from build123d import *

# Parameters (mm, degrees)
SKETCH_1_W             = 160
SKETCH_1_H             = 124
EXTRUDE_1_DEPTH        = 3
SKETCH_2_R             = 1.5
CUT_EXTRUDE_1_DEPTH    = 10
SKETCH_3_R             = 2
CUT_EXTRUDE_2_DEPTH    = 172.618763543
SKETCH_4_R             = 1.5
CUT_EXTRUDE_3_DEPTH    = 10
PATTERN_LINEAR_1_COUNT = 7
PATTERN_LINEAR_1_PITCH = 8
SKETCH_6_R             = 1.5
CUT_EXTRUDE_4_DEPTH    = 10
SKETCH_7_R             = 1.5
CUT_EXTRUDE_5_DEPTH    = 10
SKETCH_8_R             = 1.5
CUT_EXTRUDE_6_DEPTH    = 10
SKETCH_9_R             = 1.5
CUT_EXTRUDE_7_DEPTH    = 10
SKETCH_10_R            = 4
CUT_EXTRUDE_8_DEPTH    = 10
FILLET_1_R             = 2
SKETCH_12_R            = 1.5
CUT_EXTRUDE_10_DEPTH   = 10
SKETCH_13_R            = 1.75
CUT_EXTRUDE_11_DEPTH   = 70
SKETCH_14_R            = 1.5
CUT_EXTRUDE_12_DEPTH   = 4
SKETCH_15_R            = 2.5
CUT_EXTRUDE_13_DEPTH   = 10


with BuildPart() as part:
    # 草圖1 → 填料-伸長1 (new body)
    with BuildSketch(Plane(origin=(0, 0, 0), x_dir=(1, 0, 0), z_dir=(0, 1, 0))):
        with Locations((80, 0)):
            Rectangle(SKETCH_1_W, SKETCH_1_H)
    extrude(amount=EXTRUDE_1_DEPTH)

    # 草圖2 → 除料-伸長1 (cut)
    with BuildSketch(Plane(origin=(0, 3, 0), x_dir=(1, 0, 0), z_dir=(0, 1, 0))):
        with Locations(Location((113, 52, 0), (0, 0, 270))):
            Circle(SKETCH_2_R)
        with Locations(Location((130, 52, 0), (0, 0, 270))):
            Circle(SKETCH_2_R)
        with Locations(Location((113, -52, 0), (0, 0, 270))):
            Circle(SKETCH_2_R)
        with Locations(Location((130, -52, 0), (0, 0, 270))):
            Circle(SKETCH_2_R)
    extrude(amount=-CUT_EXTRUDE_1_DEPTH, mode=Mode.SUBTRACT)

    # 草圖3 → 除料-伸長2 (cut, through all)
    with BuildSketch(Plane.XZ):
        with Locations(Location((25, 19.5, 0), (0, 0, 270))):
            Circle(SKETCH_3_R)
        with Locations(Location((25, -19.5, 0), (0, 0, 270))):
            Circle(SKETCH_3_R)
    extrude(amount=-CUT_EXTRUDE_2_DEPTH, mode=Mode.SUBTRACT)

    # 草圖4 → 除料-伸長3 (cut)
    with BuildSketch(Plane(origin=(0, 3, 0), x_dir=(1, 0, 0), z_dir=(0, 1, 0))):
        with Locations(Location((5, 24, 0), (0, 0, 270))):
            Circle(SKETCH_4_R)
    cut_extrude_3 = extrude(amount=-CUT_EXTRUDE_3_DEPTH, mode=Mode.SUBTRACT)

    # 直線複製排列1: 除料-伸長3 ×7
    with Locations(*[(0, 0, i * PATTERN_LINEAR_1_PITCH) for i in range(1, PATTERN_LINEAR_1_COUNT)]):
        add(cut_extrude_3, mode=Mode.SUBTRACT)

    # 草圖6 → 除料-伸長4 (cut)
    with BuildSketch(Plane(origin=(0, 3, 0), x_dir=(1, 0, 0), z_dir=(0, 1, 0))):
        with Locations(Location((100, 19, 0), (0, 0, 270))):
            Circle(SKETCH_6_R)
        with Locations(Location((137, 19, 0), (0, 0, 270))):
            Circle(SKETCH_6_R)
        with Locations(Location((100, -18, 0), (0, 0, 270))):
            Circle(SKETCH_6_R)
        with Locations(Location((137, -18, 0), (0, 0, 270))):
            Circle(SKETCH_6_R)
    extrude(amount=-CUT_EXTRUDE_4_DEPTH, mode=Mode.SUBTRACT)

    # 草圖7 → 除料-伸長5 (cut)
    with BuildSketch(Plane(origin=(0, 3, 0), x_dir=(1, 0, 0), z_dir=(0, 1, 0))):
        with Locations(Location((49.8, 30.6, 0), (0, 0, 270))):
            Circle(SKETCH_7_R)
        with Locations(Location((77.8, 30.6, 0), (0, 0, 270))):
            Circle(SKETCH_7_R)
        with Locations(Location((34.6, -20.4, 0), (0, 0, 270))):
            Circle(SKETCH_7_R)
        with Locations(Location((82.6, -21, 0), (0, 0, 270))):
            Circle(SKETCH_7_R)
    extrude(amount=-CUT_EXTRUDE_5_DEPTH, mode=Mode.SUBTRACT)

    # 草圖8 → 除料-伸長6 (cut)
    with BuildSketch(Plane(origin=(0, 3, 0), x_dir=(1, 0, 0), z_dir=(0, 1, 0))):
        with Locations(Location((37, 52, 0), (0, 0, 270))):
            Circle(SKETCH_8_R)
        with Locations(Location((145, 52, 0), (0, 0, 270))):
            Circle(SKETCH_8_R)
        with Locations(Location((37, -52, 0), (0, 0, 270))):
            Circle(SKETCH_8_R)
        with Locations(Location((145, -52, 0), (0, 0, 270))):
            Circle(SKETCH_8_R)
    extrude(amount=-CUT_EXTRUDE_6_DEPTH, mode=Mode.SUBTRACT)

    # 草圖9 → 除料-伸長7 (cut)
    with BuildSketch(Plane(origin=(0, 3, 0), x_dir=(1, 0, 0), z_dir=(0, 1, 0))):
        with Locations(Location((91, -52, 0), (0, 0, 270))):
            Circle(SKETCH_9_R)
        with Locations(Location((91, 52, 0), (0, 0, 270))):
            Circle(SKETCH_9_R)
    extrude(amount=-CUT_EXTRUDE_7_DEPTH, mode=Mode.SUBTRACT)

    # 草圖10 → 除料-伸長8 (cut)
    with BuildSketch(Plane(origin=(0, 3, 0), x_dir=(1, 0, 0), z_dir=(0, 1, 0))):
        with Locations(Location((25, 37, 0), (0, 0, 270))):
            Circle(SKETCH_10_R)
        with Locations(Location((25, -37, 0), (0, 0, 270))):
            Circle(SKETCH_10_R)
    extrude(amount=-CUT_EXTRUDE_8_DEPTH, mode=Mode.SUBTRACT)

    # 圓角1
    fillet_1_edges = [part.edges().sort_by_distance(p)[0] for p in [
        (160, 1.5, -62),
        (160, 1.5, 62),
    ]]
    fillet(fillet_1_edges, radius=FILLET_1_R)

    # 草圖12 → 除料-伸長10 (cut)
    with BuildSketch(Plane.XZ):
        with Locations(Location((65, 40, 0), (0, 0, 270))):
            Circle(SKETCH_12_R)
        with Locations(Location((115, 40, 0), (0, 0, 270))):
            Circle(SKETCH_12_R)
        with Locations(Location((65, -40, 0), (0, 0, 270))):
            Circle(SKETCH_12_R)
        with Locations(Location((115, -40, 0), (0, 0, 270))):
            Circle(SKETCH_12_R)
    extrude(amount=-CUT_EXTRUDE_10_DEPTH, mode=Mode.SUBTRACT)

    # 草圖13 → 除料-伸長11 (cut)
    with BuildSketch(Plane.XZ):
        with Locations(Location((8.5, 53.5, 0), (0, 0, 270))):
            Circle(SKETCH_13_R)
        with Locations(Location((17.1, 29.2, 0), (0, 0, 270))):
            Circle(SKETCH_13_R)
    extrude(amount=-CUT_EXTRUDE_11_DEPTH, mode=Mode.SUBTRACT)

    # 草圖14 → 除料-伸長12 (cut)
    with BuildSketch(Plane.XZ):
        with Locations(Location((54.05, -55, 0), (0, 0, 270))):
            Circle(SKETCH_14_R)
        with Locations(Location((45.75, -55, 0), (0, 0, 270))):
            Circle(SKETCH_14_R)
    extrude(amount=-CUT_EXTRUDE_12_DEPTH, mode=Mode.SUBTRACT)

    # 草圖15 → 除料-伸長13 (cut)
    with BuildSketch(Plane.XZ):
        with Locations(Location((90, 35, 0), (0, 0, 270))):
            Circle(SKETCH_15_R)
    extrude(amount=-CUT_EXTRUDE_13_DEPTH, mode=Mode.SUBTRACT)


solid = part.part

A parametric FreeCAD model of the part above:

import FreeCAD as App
import Part
import Sketcher

V = App.Vector
Q = App.Units.Quantity


def edges_at(feature, points):
    """Names of the edges that pass closest to the given points."""
    edges = feature.Shape.Edges
    near = lambda p: min(range(len(edges)), key=lambda i: edges[i].distToShape(Part.Vertex(*p))[0])
    return sorted({f"Edge{near(p) + 1}" for p in points})


def add_polygon(sketch, points):
    """Adds a closed chain of lines whose ends are joined by coincident constraints."""
    first, n = sketch.GeometryCount, len(points)
    for a, b in zip(points, points[1:] + points[:1]):
        sketch.addGeometry(Part.LineSegment(App.Vector(*a, 0), App.Vector(*b, 0)), False)
    for i in range(n):
        sketch.addConstraint(Sketcher.Constraint("Coincident", first + i, 2, first + (i + 1) % n, 1))

doc = App.newDocument("Part")
body = doc.addObject("PartDesign::Body", "Body")

# Sketch on XZ plane
sketch1 = body.newObject("Sketcher::SketchObject", "Sketch")
sketch1.AttachmentSupport = (doc.getObject("XZ_Plane"), [""])
sketch1.MapMode = "FlatFace"
add_polygon(sketch1, [(0, -62), (0, 62), (160, 62), (160, -62)])  # lines 0-3
sketch1.addConstraint(Sketcher.Constraint("Vertical", 0))
sketch1.addConstraint(Sketcher.Constraint("Horizontal", 1))
sketch1.addConstraint(Sketcher.Constraint("Vertical", 2))
sketch1.addConstraint(Sketcher.Constraint("Horizontal", 3))
sketch1.addConstraint(Sketcher.Constraint("Symmetric", 0, 2, 3, 2, -1, 1))
sketch1.addConstraint(Sketcher.Constraint("DistanceX", 1, 1, 1, 2, Q("160 mm")))
sketch1.addConstraint(Sketcher.Constraint("DistanceY", 0, 1, 0, 2, Q("124 mm")))
pad1 = body.newObject("PartDesign::Pad", "Pad")
pad1.Profile = sketch1
pad1.Length = 3
pad1.Reversed = True

# Sketch on XZ plane
sketch2 = body.newObject("Sketcher::SketchObject", "Sketch001")
sketch2.AttachmentSupport = (doc.getObject("XZ_Plane"), [""])
sketch2.MapMode = "FlatFace"
sketch2.AttachmentOffset = App.Placement(V(0, 0, -3), App.Rotation())
sketch2.addGeometry(Part.Circle(V(113, -52, 0), V(0, 0, 1), 1.5), False)
sketch2.addGeometry(Part.Circle(V(130, -52, 0), V(0, 0, 1), 1.5), False)
sketch2.addGeometry(Part.Circle(V(113, 52, 0), V(0, 0, 1), 1.5), False)
sketch2.addGeometry(Part.Circle(V(130, 52, 0), V(0, 0, 1), 1.5), False)
sketch2.addConstraint(Sketcher.Constraint("Equal", 0, 1))
sketch2.addConstraint(Sketcher.Constraint("Equal", 1, 2))
sketch2.addConstraint(Sketcher.Constraint("Equal", 2, 3))
sketch2.addConstraint(Sketcher.Constraint("Symmetric", 0, 3, 2, 3, -1))
sketch2.addConstraint(Sketcher.Constraint("Symmetric", 1, 3, 3, 3, -1))
sketch2.addConstraint(Sketcher.Constraint("Horizontal", 0, 3, 1, 3))
sketch2.addConstraint(Sketcher.Constraint("Diameter", 0, Q("3 mm")))
sketch2.addConstraint(Sketcher.Constraint("DistanceX", -1, 1, 0, 3, Q("113 mm")))
sketch2.addConstraint(Sketcher.Constraint("DistanceY", 0, 3, -1, 1, Q("52 mm")))
sketch2.addConstraint(Sketcher.Constraint("DistanceX", -1, 1, 1, 3, Q("130 mm")))
pocket1 = body.newObject("PartDesign::Pocket", "Pocket")
pocket1.Profile = sketch2
pocket1.Length = 10
pocket1.Reversed = True

# Sketch on XZ plane
sketch3 = body.newObject("Sketcher::SketchObject", "Sketch002")
sketch3.AttachmentSupport = (doc.getObject("XZ_Plane"), [""])
sketch3.MapMode = "FlatFace"
sketch3.addGeometry(Part.Circle(V(25, 19.5, 0), V(0, 0, 1), 2), False)
sketch3.addGeometry(Part.Circle(V(25, -19.5, 0), V(0, 0, 1), 2), False)
sketch3.addConstraint(Sketcher.Constraint("Equal", 0, 1))
sketch3.addConstraint(Sketcher.Constraint("Symmetric", 0, 3, 1, 3, -1))
sketch3.addConstraint(Sketcher.Constraint("Diameter", 0, Q("4 mm")))
sketch3.addConstraint(Sketcher.Constraint("DistanceX", -1, 1, 0, 3, Q("25 mm")))
sketch3.addConstraint(Sketcher.Constraint("DistanceY", 1, 3, 0, 3, Q("39 mm")))
pocket2 = body.newObject("PartDesign::Pocket", "Pocket001")
pocket2.Profile = sketch3
pocket2.Type = "ThroughAll"

# Sketch on XZ plane
sketch4 = body.newObject("Sketcher::SketchObject", "Sketch003")
sketch4.AttachmentSupport = (doc.getObject("XZ_Plane"), [""])
sketch4.MapMode = "FlatFace"
sketch4.AttachmentOffset = App.Placement(V(0, 0, -3), App.Rotation())
sketch4.addGeometry(Part.Circle(V(5, -24, 0), V(0, 0, 1), 1.5), False)
sketch4.addConstraint(Sketcher.Constraint("Diameter", 0, Q("3 mm")))
sketch4.addConstraint(Sketcher.Constraint("DistanceX", -1, 1, 0, 3, Q("5 mm")))
sketch4.addConstraint(Sketcher.Constraint("DistanceY", 0, 3, -1, 1, Q("24 mm")))
pocket3 = body.newObject("PartDesign::Pocket", "Pocket002")
pocket3.Profile = sketch4
pocket3.Length = 10
pocket3.Reversed = True
doc.recompute()

linearpattern = body.newObject("PartDesign::LinearPattern", "LinearPattern")
linearpattern.Originals = [pocket3]
linearpattern.Direction = (doc.getObject("Z_Axis"), [""])
linearpattern.Mode = "offset"
linearpattern.Offset = 8
linearpattern.Occurrences = 7
body.Tip = linearpattern

# Sketch on XZ plane
sketch5 = body.newObject("Sketcher::SketchObject", "Sketch004")
sketch5.AttachmentSupport = (doc.getObject("XZ_Plane"), [""])
sketch5.MapMode = "FlatFace"
sketch5.AttachmentOffset = App.Placement(V(0, 0, -3), App.Rotation())
sketch5.addGeometry(Part.Circle(V(100, -19, 0), V(0, 0, 1), 1.5), False)
sketch5.addGeometry(Part.Circle(V(137, -19, 0), V(0, 0, 1), 1.5), False)
sketch5.addGeometry(Part.Circle(V(100, 18, 0), V(0, 0, 1), 1.5), False)
sketch5.addGeometry(Part.Circle(V(137, 18, 0), V(0, 0, 1), 1.5), False)
sketch5.addConstraint(Sketcher.Constraint("Equal", 0, 1))
sketch5.addConstraint(Sketcher.Constraint("Equal", 1, 2))
sketch5.addConstraint(Sketcher.Constraint("Equal", 2, 3))
sketch5.addConstraint(Sketcher.Constraint("Horizontal", 0, 3, 1, 3))
sketch5.addConstraint(Sketcher.Constraint("Horizontal", 2, 3, 3, 3))
sketch5.addConstraint(Sketcher.Constraint("Vertical", 0, 3, 2, 3))
sketch5.addConstraint(Sketcher.Constraint("Vertical", 1, 3, 3, 3))
sketch5.addConstraint(Sketcher.Constraint("Diameter", 0, Q("3 mm")))
sketch5.addConstraint(Sketcher.Constraint("DistanceX", -1, 1, 0, 3, Q("100 mm")))
sketch5.addConstraint(Sketcher.Constraint("DistanceY", 0, 3, -1, 1, Q("19 mm")))
sketch5.addConstraint(Sketcher.Constraint("DistanceX", -1, 1, 1, 3, Q("137 mm")))
sketch5.addConstraint(Sketcher.Constraint("DistanceY", -1, 1, 2, 3, Q("18 mm")))
pocket4 = body.newObject("PartDesign::Pocket", "Pocket003")
pocket4.Profile = sketch5
pocket4.Length = 10
pocket4.Reversed = True

# Sketch on XZ plane
sketch6 = body.newObject("Sketcher::SketchObject", "Sketch005")
sketch6.AttachmentSupport = (doc.getObject("XZ_Plane"), [""])
sketch6.MapMode = "FlatFace"
sketch6.AttachmentOffset = App.Placement(V(0, 0, -3), App.Rotation())
sketch6.addGeometry(Part.Circle(V(49.8, -30.6, 0), V(0, 0, 1), 1.5), False)
sketch6.addGeometry(Part.Circle(V(77.8, -30.6, 0), V(0, 0, 1), 1.5), False)
sketch6.addGeometry(Part.Circle(V(34.6, 20.4, 0), V(0, 0, 1), 1.5), False)
sketch6.addGeometry(Part.Circle(V(82.6, 21, 0), V(0, 0, 1), 1.5), False)
sketch6.addConstraint(Sketcher.Constraint("Equal", 0, 1))
sketch6.addConstraint(Sketcher.Constraint("Equal", 1, 2))
sketch6.addConstraint(Sketcher.Constraint("Equal", 2, 3))
sketch6.addConstraint(Sketcher.Constraint("Horizontal", 0, 3, 1, 3))
sketch6.addConstraint(Sketcher.Constraint("Diameter", 0, Q("3 mm")))
sketch6.addConstraint(Sketcher.Constraint("DistanceY", -1, 1, 3, 3, Q("21 mm")))
sketch6.addConstraint(Sketcher.Constraint("DistanceX", 0, 3, 1, 3, Q("28 mm")))
sketch6.addConstraint(Sketcher.Constraint("DistanceY", 0, 3, 2, 3, Q("51 mm")))
sketch6.addConstraint(Sketcher.Constraint("DistanceX", 2, 3, 3, 3, Q("48 mm")))
sketch6.addConstraint(Sketcher.Constraint("DistanceX", -1, 1, 0, 3, Q("49.8 mm")))
sketch6.addConstraint(Sketcher.Constraint("DistanceY", 0, 3, -1, 1, Q("30.6 mm")))
sketch6.addConstraint(Sketcher.Constraint("DistanceX", -1, 1, 2, 3, Q("34.6 mm")))
pocket5 = body.newObject("PartDesign::Pocket", "Pocket004")
pocket5.Profile = sketch6
pocket5.Length = 10
pocket5.Reversed = True

# Sketch on XZ plane
sketch7 = body.newObject("Sketcher::SketchObject", "Sketch006")
sketch7.AttachmentSupport = (doc.getObject("XZ_Plane"), [""])
sketch7.MapMode = "FlatFace"
sketch7.AttachmentOffset = App.Placement(V(0, 0, -3), App.Rotation())
sketch7.addGeometry(Part.Circle(V(37, -52, 0), V(0, 0, 1), 1.5), False)
sketch7.addGeometry(Part.Circle(V(145, -52, 0), V(0, 0, 1), 1.5), False)
sketch7.addGeometry(Part.Circle(V(37, 52, 0), V(0, 0, 1), 1.5), False)
sketch7.addGeometry(Part.Circle(V(145, 52, 0), V(0, 0, 1), 1.5), False)
sketch7.addConstraint(Sketcher.Constraint("Equal", 0, 1))
sketch7.addConstraint(Sketcher.Constraint("Equal", 1, 2))
sketch7.addConstraint(Sketcher.Constraint("Equal", 2, 3))
sketch7.addConstraint(Sketcher.Constraint("Symmetric", 0, 3, 2, 3, -1))
sketch7.addConstraint(Sketcher.Constraint("Symmetric", 1, 3, 3, 3, -1))
sketch7.addConstraint(Sketcher.Constraint("Horizontal", 0, 3, 1, 3))
sketch7.addConstraint(Sketcher.Constraint("Diameter", 0, Q("3 mm")))
sketch7.addConstraint(Sketcher.Constraint("DistanceX", -1, 1, 0, 3, Q("37 mm")))
sketch7.addConstraint(Sketcher.Constraint("DistanceY", 0, 3, -1, 1, Q("52 mm")))
sketch7.addConstraint(Sketcher.Constraint("DistanceX", -1, 1, 1, 3, Q("145 mm")))
pocket6 = body.newObject("PartDesign::Pocket", "Pocket005")
pocket6.Profile = sketch7
pocket6.Length = 10
pocket6.Reversed = True

# Sketch on XZ plane
sketch8 = body.newObject("Sketcher::SketchObject", "Sketch007")
sketch8.AttachmentSupport = (doc.getObject("XZ_Plane"), [""])
sketch8.MapMode = "FlatFace"
sketch8.AttachmentOffset = App.Placement(V(0, 0, -3), App.Rotation())
sketch8.addGeometry(Part.Circle(V(91, 52, 0), V(0, 0, 1), 1.5), False)
sketch8.addGeometry(Part.Circle(V(91, -52, 0), V(0, 0, 1), 1.5), False)
sketch8.addConstraint(Sketcher.Constraint("Equal", 0, 1))
sketch8.addConstraint(Sketcher.Constraint("Symmetric", 0, 3, 1, 3, -1))
sketch8.addConstraint(Sketcher.Constraint("Diameter", 0, Q("3 mm")))
sketch8.addConstraint(Sketcher.Constraint("DistanceX", -1, 1, 0, 3, Q("91 mm")))
sketch8.addConstraint(Sketcher.Constraint("DistanceY", -1, 1, 0, 3, Q("52 mm")))
pocket7 = body.newObject("PartDesign::Pocket", "Pocket006")
pocket7.Profile = sketch8
pocket7.Length = 10
pocket7.Reversed = True

# Sketch on XZ plane
sketch9 = body.newObject("Sketcher::SketchObject", "Sketch008")
sketch9.AttachmentSupport = (doc.getObject("XZ_Plane"), [""])
sketch9.MapMode = "FlatFace"
sketch9.AttachmentOffset = App.Placement(V(0, 0, -3), App.Rotation())
sketch9.addGeometry(Part.Circle(V(25, -37, 0), V(0, 0, 1), 4), False)
sketch9.addGeometry(Part.Circle(V(25, 37, 0), V(0, 0, 1), 4), False)
sketch9.addConstraint(Sketcher.Constraint("Equal", 0, 1))
sketch9.addConstraint(Sketcher.Constraint("Symmetric", 0, 3, 1, 3, -1))
sketch9.addConstraint(Sketcher.Constraint("Diameter", 0, Q("8 mm")))
sketch9.addConstraint(Sketcher.Constraint("DistanceX", -1, 1, 0, 3, Q("25 mm")))
sketch9.addConstraint(Sketcher.Constraint("DistanceY", 0, 3, -1, 1, Q("37 mm")))
pocket8 = body.newObject("PartDesign::Pocket", "Pocket007")
pocket8.Profile = sketch9
pocket8.Length = 10
pocket8.Reversed = True
doc.recompute()

fillet = body.newObject("PartDesign::Fillet", "Fillet")
fillet.Base = (pocket8, edges_at(pocket8, [(160, 1.5, -62), (160, 1.5, 62)]))
fillet.Radius = 2

# Sketch on XZ plane
sketch10 = body.newObject("Sketcher::SketchObject", "Sketch009")
sketch10.AttachmentSupport = (doc.getObject("XZ_Plane"), [""])
sketch10.MapMode = "FlatFace"
sketch10.addGeometry(Part.Circle(V(65, 40, 0), V(0, 0, 1), 1.5), False)
sketch10.addGeometry(Part.Circle(V(115, 40, 0), V(0, 0, 1), 1.5), False)
sketch10.addGeometry(Part.Circle(V(65, -40, 0), V(0, 0, 1), 1.5), False)
sketch10.addGeometry(Part.Circle(V(115, -40, 0), V(0, 0, 1), 1.5), False)
sketch10.addConstraint(Sketcher.Constraint("Equal", 0, 1))
sketch10.addConstraint(Sketcher.Constraint("Equal", 1, 2))
sketch10.addConstraint(Sketcher.Constraint("Equal", 2, 3))
sketch10.addConstraint(Sketcher.Constraint("Symmetric", 0, 3, 2, 3, -1))
sketch10.addConstraint(Sketcher.Constraint("Symmetric", 1, 3, 3, 3, -1))
sketch10.addConstraint(Sketcher.Constraint("Horizontal", 0, 3, 1, 3))
sketch10.addConstraint(Sketcher.Constraint("Diameter", 0, Q("3 mm")))
sketch10.addConstraint(Sketcher.Constraint("DistanceX", -1, 1, 0, 3, Q("65 mm")))
sketch10.addConstraint(Sketcher.Constraint("DistanceY", -1, 1, 0, 3, Q("40 mm")))
sketch10.addConstraint(Sketcher.Constraint("DistanceX", -1, 1, 1, 3, Q("115 mm")))
pocket9 = body.newObject("PartDesign::Pocket", "Pocket008")
pocket9.Profile = sketch10
pocket9.Length = 10

# Sketch on XZ plane
sketch11 = body.newObject("Sketcher::SketchObject", "Sketch010")
sketch11.AttachmentSupport = (doc.getObject("XZ_Plane"), [""])
sketch11.MapMode = "FlatFace"
sketch11.addGeometry(Part.Circle(V(8.5, 53.5, 0), V(0, 0, 1), 1.8), False)
sketch11.addGeometry(Part.Circle(V(17.1, 29.2, 0), V(0, 0, 1), 1.8), False)
sketch11.addConstraint(Sketcher.Constraint("Equal", 0, 1))
sketch11.addConstraint(Sketcher.Constraint("Diameter", 0, Q("3.5 mm")))
sketch11.addConstraint(Sketcher.Constraint("DistanceX", -1, 1, 0, 3, Q("8.5 mm")))
sketch11.addConstraint(Sketcher.Constraint("DistanceY", -1, 1, 0, 3, Q("53.5 mm")))
sketch11.addConstraint(Sketcher.Constraint("DistanceX", -1, 1, 1, 3, Q("17.1 mm")))
sketch11.addConstraint(Sketcher.Constraint("DistanceY", -1, 1, 1, 3, Q("29.2 mm")))
pocket10 = body.newObject("PartDesign::Pocket", "Pocket009")
pocket10.Profile = sketch11
pocket10.Length = 70

# Sketch on XZ plane
sketch12 = body.newObject("Sketcher::SketchObject", "Sketch011")
sketch12.AttachmentSupport = (doc.getObject("XZ_Plane"), [""])
sketch12.MapMode = "FlatFace"
sketch12.addGeometry(Part.Circle(V(54, -55, 0), V(0, 0, 1), 1.5), False)
sketch12.addGeometry(Part.Circle(V(45.8, -55, 0), V(0, 0, 1), 1.5), False)
sketch12.addConstraint(Sketcher.Constraint("Equal", 0, 1))
sketch12.addConstraint(Sketcher.Constraint("Horizontal", 0, 3, 1, 3))
sketch12.addConstraint(Sketcher.Constraint("Diameter", 0, Q("3 mm")))
sketch12.addConstraint(Sketcher.Constraint("DistanceY", 0, 3, -1, 1, Q("55 mm")))
sketch12.addConstraint(Sketcher.Constraint("DistanceX", 1, 3, 0, 3, Q("8.3 mm")))
sketch12.addConstraint(Sketcher.Constraint("DistanceX", -1, 1, 0, 3, Q("54.05 mm")))
pocket11 = body.newObject("PartDesign::Pocket", "Pocket010")
pocket11.Profile = sketch12
pocket11.Length = 4

# Sketch on XZ plane
sketch13 = body.newObject("Sketcher::SketchObject", "Sketch012")
sketch13.AttachmentSupport = (doc.getObject("XZ_Plane"), [""])
sketch13.MapMode = "FlatFace"
sketch13.addGeometry(Part.Circle(V(90, 35, 0), V(0, 0, 1), 2.5), False)
sketch13.addConstraint(Sketcher.Constraint("Diameter", 0, Q("5 mm")))
sketch13.addConstraint(Sketcher.Constraint("DistanceX", -1, 1, 0, 3, Q("90 mm")))
sketch13.addConstraint(Sketcher.Constraint("DistanceY", -1, 1, 0, 3, Q("35 mm")))
pocket12 = body.newObject("PartDesign::Pocket", "Pocket011")
pocket12.Profile = sketch13
pocket12.Length = 10

doc.recompute()
